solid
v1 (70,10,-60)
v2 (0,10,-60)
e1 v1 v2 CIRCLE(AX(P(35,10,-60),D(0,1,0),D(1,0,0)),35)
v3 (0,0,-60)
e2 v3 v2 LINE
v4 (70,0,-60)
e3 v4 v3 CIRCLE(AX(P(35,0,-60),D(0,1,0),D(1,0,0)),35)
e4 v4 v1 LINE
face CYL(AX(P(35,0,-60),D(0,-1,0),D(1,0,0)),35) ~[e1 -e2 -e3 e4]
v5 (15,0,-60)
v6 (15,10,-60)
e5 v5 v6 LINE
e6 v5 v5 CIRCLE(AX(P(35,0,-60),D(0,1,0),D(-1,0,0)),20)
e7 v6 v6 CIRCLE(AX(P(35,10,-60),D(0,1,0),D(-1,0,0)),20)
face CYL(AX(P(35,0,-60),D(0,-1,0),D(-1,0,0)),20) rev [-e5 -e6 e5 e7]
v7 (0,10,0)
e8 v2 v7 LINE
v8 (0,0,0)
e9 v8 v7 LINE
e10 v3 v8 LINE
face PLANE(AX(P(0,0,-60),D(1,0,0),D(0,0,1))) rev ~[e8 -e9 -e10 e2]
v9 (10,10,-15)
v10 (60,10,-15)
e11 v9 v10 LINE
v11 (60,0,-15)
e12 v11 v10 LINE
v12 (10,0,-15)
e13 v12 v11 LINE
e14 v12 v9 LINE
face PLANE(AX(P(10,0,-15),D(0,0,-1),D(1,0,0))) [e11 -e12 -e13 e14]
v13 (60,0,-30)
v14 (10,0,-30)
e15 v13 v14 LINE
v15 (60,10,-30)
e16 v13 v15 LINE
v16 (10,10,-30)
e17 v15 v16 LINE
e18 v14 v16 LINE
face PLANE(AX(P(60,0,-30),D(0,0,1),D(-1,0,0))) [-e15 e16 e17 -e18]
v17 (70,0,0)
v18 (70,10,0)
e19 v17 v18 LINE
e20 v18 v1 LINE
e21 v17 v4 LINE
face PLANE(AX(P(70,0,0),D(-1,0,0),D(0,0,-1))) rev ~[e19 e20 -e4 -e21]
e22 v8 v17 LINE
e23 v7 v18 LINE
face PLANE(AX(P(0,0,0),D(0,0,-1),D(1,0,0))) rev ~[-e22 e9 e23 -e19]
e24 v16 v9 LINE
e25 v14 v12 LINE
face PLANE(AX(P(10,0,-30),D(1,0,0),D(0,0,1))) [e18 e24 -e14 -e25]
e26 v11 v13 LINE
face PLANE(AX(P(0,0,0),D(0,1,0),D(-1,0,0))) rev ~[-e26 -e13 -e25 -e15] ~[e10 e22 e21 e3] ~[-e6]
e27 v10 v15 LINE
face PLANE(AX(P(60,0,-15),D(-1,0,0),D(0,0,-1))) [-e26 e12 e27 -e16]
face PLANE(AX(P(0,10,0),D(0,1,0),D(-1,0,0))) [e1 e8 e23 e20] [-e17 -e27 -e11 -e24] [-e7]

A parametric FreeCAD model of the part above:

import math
import FreeCAD as App
import Part
import Sketcher
from FreeCAD import Vector
Q = App.Units.Quantity

doc = App.newDocument("Part")
params = doc.addObject("Spreadsheet::Sheet", "Params")
for row, (alias, value) in enumerate([
    ("sketch1_diameter", "40 mm"),
    ("sketch1_radius", "35 mm"),
    ("sketch1_width", "50 mm"),
    ("sketch1_height", "60 mm"),
    ("sketch1_height2", "15 mm"),
    ("pad1_length", "10 mm"),
], start=1):
    params.set(f"A{row}", alias)
    params.set(f"B{row}", "=" + value)
    params.setAlias(f"B{row}", alias)

body = doc.addObject("PartDesign::Body", "Body")

# Sketch on XZ plane
sketch1 = doc.addObject("Sketcher::SketchObject", "Sketch")
body.addObject(sketch1)
sketch1.AttachmentSupport = (doc.XZ_Plane, [""])
sketch1.MapMode = "FlatFace"
sketch1.addGeometry([
    Part.LineSegment(Vector(0, -60, 0), Vector(0, 0, 0)),  # 0
    Part.LineSegment(Vector(0, 0, 0), Vector(70, 0, 0)),  # 1
    Part.LineSegment(Vector(70, 0, 0), Vector(70, -60, 0)),  # 2
    Part.ArcOfCircle(Part.Circle(Vector(35, -60, 0), Vector(0, 0, 1), 35), math.radians(180), math.radians(360)),  # 3
    Part.Circle(Vector(35, -60, 0), Vector(0, 0, 1), 20),  # 4
    Part.LineSegment(Vector(60, -15, 0), Vector(10, -15, 0)),  # 5
    Part.LineSegment(Vector(10, -15, 0), Vector(10, -30, 0)),  # 6
    Part.LineSegment(Vector(10, -30, 0), Vector(60, -30, 0)),  # 7
    Part.LineSegment(Vector(60, -30, 0), Vector(60, -15, 0)),  # 8
], False)
sketch1.addConstraint([
    Sketcher.Constraint("Coincident", 0, 2, 1, 1),
    Sketcher.Constraint("Coincident", 1, 2, 2, 1),
    Sketcher.Constraint("Tangent", 2, 2, 3, 2),
    Sketcher.Constraint("Tangent", 3, 1, 0, 1),
    Sketcher.Constraint("Coincident", 5, 2, 6, 1),
    Sketcher.Constraint("Coincident", 6, 2, 7, 1),
    Sketcher.Constraint("Coincident", 7, 2, 8, 1),
    Sketcher.Constraint("Coincident", 8, 2, 5, 1),
    Sketcher.Constraint("Vertical", 0),
    Sketcher.Constraint("Horizontal", 1),
    Sketcher.Constraint("Vertical", 2),
    Sketcher.Constraint("Horizontal", 5),
    Sketcher.Constraint("Vertical", 6),
    Sketcher.Constraint("Horizontal", 7),
    Sketcher.Constraint("Vertical", 8),
    Sketcher.Constraint("Coincident", 0, 2, -1, 1),
    Sketcher.Constraint("Coincident", 4, 3, 3, 3),
    Sketcher.Constraint("Diameter", 4, Q("40 mm")),
    Sketcher.Constraint("Radius", 3, Q("35 mm")),
    Sketcher.Constraint("DistanceX", 5, 2, 5, 1, Q("50 mm")),
    Sketcher.Constraint("DistanceY", 0, 1, 0, 2, Q("60 mm")),
    Sketcher.Constraint("DistanceY", 6, 2, 6, 1, Q("15 mm")),
    Sketcher.Constraint("DistanceX", -1, 1, 5, 2, Q("10 mm")),
    Sketcher.Constraint("DistanceY", 5, 2, -1, 1, Q("15 mm")),
])
sketch1.setExpression("Constraints[17]", "Params.sketch1_diameter")
sketch1.setExpression("Constraints[18]", "Params.sketch1_radius")
sketch1.setExpression("Constraints[19]", "Params.sketch1_width")
sketch1.setExpression("Constraints[20]", "Params.sketch1_height")
sketch1.setExpression("Constraints[21]", "Params.sketch1_height2")
pad1 = doc.addObject("PartDesign::Pad", "Pad")
body.addObject(pad1)
pad1.Profile = sketch1
pad1.setExpression("Length", "Params.pad1_length")
pad1.Reversed = True

doc.recompute()
